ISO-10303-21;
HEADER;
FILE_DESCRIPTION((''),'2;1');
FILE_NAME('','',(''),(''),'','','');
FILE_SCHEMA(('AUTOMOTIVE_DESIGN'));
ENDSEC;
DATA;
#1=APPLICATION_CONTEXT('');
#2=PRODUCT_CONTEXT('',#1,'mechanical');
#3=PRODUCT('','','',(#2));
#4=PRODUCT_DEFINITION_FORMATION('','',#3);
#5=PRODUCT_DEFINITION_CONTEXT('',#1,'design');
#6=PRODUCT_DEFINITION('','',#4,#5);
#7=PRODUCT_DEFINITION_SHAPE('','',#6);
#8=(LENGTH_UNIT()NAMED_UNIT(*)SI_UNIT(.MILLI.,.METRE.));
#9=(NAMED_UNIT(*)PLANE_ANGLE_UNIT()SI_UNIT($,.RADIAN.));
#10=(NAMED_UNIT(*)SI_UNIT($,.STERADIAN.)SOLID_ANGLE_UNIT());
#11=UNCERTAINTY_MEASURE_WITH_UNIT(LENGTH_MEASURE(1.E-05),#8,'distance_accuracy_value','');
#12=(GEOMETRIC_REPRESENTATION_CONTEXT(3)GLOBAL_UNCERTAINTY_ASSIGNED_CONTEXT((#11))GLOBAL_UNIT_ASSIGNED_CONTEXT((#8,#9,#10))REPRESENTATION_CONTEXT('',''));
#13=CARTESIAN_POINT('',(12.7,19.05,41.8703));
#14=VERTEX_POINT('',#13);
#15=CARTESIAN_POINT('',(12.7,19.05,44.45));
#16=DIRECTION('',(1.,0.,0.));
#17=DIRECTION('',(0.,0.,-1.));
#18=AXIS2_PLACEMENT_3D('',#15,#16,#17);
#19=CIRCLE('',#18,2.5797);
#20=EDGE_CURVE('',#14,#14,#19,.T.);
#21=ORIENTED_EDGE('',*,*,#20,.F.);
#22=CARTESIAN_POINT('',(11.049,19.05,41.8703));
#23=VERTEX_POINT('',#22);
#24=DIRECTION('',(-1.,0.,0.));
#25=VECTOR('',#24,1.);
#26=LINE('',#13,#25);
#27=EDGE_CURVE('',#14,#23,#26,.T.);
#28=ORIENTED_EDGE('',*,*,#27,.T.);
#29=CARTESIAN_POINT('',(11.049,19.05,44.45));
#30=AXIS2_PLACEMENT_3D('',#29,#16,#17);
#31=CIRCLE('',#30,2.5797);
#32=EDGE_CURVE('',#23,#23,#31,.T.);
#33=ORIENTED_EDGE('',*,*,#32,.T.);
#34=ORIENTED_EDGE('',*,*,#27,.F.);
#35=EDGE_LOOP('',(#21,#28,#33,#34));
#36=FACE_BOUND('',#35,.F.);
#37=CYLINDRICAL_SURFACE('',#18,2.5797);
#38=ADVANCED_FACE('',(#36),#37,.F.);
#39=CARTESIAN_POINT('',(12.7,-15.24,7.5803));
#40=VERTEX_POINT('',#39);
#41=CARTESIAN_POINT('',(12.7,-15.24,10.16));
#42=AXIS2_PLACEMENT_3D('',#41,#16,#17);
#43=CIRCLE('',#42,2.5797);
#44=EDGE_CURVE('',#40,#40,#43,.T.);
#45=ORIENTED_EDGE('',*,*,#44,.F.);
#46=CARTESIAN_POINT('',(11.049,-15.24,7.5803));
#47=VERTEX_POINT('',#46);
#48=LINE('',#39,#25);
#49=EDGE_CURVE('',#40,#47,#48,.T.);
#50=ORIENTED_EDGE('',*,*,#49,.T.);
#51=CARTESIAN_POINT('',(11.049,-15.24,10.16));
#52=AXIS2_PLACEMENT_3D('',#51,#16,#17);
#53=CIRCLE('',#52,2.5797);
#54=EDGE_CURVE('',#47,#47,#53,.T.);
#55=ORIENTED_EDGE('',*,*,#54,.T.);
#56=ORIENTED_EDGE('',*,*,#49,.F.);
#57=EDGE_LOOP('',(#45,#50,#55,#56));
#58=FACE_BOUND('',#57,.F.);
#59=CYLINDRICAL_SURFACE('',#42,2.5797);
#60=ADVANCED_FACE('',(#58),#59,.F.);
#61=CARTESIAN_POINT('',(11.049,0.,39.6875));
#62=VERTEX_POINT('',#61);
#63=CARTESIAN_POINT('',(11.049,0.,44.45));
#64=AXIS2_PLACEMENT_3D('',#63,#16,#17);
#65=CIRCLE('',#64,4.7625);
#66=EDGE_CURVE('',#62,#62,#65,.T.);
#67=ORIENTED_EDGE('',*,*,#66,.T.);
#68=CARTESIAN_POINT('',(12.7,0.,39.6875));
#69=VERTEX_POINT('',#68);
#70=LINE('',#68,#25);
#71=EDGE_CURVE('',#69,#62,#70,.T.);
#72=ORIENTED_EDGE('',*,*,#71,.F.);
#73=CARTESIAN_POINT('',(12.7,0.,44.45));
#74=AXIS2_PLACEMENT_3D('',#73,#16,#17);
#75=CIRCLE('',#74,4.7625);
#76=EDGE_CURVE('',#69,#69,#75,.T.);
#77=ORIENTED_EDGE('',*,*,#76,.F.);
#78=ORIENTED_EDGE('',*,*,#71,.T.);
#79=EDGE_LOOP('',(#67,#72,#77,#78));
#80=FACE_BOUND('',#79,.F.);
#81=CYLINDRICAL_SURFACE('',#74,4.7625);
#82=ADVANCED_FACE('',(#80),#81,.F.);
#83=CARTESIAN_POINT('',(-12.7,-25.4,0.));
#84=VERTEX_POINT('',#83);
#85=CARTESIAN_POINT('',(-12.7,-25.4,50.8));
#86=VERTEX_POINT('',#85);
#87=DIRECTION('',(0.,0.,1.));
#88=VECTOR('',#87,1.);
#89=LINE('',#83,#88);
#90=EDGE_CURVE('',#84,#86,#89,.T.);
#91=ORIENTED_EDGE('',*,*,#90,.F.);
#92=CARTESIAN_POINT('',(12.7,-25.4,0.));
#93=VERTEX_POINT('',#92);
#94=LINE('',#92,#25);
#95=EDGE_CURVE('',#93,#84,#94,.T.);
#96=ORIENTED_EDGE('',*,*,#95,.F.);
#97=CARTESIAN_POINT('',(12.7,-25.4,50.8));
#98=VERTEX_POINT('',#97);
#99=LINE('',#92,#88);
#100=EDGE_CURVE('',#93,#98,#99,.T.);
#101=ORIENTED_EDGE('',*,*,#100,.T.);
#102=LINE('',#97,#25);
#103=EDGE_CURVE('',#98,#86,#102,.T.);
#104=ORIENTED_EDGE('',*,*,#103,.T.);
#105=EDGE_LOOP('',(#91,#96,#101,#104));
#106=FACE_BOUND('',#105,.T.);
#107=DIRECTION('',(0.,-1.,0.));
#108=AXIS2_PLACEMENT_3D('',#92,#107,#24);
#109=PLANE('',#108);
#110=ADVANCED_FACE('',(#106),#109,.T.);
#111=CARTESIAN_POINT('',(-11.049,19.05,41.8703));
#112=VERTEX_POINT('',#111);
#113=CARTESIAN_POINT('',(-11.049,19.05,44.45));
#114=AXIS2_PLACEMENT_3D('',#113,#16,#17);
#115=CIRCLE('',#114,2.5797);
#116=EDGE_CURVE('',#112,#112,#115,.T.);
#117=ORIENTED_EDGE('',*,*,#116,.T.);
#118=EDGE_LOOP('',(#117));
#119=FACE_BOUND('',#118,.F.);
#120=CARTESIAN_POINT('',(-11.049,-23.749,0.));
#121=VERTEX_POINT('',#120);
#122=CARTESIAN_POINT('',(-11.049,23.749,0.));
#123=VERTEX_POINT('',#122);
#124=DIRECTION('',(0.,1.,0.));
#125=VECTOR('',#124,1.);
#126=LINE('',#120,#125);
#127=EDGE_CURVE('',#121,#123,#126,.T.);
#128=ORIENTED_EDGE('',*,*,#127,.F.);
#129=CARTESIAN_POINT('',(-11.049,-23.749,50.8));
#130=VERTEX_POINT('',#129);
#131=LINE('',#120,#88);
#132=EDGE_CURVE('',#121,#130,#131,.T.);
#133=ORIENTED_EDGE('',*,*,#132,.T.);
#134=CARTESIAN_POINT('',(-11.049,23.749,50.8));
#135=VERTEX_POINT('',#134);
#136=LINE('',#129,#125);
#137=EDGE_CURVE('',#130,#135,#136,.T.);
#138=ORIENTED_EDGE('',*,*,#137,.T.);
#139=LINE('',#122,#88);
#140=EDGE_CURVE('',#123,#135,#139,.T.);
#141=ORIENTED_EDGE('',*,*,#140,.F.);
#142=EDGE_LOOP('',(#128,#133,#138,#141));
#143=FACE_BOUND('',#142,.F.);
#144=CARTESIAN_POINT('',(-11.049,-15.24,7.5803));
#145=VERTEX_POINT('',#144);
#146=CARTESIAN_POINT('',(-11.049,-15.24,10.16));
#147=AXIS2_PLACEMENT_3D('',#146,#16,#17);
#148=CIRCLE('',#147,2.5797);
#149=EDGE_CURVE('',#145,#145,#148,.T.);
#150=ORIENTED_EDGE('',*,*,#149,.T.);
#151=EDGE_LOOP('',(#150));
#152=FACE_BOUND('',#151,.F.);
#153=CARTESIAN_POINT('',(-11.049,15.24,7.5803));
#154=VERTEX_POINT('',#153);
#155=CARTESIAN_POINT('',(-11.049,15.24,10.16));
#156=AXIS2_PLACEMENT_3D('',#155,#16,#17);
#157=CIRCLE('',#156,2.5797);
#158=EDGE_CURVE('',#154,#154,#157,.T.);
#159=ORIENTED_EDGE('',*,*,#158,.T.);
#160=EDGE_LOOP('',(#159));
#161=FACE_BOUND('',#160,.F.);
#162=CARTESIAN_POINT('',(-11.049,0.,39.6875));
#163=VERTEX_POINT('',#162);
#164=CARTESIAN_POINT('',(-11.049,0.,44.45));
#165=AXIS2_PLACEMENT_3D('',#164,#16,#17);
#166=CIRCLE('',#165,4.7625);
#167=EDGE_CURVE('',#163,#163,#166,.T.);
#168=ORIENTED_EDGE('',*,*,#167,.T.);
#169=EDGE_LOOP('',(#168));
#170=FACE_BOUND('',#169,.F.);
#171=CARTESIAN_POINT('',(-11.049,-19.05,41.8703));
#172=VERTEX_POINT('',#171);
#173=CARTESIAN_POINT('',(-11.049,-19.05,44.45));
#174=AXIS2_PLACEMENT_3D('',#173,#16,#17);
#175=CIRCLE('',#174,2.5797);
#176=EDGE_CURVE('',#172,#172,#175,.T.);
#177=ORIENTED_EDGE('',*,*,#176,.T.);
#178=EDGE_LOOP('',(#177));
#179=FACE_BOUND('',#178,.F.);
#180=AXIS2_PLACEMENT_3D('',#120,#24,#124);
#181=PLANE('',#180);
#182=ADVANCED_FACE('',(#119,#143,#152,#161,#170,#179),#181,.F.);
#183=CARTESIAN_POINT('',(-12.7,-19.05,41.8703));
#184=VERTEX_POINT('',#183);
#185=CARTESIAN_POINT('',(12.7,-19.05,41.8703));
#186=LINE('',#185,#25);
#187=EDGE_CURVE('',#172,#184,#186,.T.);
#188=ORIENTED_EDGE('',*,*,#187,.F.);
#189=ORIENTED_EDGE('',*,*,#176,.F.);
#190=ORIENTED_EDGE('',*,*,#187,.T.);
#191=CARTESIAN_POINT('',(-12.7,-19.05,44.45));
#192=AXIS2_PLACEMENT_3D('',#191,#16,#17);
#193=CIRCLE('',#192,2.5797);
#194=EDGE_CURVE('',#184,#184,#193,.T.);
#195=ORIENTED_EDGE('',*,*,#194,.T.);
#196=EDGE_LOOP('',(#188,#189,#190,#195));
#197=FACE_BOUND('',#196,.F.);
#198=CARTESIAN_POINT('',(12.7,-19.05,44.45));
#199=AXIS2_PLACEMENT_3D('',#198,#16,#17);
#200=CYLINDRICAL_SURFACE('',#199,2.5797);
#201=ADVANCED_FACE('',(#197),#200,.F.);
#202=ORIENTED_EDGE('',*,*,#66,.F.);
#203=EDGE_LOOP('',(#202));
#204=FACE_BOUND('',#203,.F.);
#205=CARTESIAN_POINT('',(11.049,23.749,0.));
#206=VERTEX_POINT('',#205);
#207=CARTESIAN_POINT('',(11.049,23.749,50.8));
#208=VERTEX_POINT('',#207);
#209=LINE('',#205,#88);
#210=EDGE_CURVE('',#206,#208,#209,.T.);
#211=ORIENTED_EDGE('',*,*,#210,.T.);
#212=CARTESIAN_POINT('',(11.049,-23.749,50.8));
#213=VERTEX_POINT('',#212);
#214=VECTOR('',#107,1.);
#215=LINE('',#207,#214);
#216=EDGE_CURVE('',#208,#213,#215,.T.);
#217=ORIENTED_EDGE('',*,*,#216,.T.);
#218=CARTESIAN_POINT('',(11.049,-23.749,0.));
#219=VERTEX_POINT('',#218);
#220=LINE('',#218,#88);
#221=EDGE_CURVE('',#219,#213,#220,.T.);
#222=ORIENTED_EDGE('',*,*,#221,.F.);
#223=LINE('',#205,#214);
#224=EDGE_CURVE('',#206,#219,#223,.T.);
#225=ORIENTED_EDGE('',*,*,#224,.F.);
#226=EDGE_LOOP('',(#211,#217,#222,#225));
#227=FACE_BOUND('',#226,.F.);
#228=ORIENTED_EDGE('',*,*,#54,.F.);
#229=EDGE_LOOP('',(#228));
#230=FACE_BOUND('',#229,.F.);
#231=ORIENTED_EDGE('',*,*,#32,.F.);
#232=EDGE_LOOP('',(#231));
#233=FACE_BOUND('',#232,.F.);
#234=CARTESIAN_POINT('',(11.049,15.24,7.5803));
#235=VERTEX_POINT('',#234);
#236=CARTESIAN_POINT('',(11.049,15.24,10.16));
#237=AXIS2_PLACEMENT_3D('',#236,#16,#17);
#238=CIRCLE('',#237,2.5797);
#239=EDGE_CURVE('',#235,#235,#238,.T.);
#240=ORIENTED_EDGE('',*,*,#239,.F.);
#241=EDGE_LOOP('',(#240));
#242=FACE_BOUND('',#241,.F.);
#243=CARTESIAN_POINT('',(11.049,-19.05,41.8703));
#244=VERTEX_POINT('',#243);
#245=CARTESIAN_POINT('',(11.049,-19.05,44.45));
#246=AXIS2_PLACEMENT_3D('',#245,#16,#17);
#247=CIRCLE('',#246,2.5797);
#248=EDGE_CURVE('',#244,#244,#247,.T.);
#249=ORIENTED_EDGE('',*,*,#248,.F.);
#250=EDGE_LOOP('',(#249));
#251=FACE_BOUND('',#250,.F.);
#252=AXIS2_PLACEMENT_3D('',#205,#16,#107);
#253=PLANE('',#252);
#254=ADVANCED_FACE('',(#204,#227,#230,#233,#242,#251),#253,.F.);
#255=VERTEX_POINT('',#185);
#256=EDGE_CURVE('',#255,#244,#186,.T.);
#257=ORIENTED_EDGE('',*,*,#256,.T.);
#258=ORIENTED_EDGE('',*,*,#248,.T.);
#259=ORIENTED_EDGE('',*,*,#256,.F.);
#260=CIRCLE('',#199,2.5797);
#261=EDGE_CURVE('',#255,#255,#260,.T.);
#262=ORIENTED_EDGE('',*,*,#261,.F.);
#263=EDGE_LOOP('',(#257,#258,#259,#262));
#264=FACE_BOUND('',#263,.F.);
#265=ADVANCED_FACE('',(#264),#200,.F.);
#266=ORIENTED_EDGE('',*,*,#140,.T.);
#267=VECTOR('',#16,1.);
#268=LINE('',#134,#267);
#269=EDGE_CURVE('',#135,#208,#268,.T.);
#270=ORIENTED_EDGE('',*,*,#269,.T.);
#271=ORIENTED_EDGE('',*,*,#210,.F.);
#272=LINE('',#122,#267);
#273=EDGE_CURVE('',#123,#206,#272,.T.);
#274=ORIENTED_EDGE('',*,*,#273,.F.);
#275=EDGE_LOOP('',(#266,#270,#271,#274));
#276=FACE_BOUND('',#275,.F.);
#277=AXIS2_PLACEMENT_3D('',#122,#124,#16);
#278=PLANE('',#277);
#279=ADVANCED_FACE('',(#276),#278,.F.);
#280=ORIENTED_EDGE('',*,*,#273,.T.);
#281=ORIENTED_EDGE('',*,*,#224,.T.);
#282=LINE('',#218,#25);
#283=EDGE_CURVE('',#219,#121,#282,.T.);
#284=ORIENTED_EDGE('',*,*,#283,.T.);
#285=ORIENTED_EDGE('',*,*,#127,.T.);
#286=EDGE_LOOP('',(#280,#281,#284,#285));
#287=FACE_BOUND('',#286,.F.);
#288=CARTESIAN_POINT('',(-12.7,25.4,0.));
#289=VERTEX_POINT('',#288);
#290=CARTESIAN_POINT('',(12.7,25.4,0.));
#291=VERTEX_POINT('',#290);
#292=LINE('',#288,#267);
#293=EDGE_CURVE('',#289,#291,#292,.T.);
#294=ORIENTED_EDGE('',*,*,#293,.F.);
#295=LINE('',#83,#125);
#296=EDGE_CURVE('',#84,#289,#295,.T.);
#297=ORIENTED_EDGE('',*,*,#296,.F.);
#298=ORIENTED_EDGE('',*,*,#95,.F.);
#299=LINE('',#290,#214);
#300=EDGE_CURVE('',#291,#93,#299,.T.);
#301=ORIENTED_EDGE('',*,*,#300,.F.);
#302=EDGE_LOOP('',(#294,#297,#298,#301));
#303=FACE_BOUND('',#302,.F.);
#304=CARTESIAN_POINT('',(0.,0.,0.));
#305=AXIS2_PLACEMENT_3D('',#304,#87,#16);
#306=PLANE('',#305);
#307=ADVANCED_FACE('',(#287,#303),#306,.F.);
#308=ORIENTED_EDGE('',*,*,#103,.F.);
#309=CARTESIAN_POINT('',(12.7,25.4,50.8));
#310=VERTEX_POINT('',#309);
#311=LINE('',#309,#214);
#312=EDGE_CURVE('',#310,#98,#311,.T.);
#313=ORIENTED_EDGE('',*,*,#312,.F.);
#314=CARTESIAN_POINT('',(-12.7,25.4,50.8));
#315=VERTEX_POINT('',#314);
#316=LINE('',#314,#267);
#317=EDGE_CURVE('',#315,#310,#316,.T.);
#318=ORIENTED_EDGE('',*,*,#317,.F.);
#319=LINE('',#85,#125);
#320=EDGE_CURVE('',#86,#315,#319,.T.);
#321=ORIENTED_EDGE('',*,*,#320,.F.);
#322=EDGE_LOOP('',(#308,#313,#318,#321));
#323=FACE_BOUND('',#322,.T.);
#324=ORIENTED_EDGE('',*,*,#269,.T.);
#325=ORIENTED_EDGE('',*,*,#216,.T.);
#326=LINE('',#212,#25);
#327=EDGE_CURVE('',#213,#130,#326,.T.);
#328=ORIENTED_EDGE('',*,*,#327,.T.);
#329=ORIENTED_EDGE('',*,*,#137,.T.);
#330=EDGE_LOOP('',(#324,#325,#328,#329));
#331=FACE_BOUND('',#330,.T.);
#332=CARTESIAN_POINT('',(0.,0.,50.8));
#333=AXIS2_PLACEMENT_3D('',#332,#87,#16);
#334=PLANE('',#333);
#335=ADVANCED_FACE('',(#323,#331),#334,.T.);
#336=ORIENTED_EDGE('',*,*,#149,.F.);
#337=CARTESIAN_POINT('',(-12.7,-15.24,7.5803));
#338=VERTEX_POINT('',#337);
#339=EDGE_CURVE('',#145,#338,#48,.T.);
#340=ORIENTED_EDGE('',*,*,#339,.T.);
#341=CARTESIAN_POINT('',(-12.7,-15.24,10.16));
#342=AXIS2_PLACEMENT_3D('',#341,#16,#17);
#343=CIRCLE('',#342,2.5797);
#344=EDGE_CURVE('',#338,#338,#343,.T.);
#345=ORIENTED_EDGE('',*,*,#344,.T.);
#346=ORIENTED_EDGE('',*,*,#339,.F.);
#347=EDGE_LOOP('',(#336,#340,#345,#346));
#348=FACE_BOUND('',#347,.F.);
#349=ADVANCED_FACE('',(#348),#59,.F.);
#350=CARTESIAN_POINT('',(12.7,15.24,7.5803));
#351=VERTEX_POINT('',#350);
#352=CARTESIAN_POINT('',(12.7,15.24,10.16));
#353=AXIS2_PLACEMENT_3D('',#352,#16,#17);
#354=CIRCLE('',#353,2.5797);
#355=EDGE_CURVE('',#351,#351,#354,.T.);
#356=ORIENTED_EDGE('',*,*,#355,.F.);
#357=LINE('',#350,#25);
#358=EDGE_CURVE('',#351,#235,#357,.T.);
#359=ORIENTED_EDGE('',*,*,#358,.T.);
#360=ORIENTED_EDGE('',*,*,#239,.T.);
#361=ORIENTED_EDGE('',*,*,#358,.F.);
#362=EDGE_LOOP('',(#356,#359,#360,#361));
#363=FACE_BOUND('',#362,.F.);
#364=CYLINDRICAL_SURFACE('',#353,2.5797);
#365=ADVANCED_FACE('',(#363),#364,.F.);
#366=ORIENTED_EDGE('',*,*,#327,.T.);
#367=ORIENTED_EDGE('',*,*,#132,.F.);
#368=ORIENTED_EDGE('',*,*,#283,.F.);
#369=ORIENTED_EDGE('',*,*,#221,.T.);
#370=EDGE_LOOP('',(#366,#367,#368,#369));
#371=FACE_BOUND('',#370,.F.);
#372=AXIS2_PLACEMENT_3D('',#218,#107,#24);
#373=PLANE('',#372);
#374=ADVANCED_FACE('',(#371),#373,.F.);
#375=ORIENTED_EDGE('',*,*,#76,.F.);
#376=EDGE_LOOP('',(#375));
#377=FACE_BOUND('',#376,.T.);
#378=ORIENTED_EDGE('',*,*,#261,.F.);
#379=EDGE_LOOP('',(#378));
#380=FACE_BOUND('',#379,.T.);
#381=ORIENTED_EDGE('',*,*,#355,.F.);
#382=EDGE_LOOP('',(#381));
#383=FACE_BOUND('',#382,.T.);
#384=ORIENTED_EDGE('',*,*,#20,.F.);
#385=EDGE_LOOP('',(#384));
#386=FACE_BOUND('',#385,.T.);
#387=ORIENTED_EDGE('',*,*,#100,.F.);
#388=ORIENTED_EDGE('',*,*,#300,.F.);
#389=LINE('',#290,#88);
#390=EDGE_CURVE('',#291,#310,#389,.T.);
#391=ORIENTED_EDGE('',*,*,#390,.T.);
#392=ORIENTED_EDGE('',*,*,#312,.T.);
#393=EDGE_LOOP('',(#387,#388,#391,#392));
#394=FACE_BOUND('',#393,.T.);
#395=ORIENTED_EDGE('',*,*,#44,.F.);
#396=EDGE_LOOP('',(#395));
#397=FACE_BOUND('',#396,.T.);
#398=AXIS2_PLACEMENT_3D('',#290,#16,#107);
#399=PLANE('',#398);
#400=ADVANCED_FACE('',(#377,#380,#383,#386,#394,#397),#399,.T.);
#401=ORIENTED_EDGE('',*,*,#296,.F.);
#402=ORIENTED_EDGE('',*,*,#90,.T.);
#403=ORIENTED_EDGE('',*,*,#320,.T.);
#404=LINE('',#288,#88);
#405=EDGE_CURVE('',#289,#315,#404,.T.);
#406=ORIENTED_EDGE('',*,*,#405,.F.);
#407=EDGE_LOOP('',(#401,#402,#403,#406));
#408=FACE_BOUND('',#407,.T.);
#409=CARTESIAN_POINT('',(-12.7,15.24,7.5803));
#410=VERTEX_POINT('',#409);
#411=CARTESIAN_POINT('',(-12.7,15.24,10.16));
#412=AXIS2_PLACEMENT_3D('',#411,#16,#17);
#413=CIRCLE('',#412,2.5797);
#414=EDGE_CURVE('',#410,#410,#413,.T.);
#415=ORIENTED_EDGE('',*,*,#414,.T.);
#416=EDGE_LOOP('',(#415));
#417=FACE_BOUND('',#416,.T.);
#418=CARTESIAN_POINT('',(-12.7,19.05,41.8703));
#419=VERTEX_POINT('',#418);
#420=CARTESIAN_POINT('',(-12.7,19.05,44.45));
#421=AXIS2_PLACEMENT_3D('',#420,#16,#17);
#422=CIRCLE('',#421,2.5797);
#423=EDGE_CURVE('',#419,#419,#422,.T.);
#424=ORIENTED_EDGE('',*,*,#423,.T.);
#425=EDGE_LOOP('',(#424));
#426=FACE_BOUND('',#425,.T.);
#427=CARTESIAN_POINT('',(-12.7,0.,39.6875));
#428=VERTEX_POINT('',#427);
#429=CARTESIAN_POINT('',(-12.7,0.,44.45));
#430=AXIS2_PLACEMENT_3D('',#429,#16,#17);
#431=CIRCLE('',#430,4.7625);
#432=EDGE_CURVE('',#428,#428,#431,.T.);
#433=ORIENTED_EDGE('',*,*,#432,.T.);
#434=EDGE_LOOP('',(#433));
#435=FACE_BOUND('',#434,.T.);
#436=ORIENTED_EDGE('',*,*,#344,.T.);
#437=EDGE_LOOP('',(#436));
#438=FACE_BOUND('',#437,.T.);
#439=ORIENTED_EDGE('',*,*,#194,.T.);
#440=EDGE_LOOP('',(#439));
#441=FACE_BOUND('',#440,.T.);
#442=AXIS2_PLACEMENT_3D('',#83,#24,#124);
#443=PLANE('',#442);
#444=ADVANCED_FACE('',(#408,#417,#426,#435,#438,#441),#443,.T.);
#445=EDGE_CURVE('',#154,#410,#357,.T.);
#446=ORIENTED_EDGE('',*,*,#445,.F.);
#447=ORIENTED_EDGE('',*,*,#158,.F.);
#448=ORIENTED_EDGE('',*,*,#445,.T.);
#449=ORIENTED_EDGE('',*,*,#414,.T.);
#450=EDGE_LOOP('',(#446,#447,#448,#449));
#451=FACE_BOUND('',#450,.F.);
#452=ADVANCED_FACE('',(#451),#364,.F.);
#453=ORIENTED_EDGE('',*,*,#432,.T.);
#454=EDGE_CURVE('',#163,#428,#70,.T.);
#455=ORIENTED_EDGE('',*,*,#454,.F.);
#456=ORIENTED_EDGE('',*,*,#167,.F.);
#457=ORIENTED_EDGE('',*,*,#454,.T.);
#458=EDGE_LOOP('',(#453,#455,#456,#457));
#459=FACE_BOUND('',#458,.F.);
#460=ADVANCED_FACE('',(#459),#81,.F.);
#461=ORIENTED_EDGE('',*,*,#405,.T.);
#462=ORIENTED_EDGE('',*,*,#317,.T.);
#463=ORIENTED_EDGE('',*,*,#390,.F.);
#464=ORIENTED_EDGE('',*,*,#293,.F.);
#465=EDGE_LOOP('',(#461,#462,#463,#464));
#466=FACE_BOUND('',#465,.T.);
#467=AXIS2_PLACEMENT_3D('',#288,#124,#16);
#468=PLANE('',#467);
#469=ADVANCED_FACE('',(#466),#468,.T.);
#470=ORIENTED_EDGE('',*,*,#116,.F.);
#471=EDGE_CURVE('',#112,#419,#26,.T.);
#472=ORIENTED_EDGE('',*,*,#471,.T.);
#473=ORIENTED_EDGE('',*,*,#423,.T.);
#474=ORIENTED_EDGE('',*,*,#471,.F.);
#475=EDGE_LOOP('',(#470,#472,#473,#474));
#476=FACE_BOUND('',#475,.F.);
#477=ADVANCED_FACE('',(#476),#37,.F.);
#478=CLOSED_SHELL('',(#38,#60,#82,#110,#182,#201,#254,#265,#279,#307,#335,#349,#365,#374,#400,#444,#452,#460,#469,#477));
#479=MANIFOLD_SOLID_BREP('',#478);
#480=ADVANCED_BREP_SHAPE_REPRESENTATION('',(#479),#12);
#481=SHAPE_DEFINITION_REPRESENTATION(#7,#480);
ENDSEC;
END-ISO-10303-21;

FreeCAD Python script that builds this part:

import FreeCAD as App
import Part
import Sketcher

V = App.Vector
Q = App.Units.Quantity


def add_polygon(sketch, points):
    """Adds a closed chain of lines whose ends are joined by coincident constraints."""
    first, n = sketch.GeometryCount, len(points)
    for a, b in zip(points, points[1:] + points[:1]):
        sketch.addGeometry(Part.LineSegment(App.Vector(*a, 0), App.Vector(*b, 0)), False)
    for i in range(n):
        sketch.addConstraint(Sketcher.Constraint("Coincident", first + i, 2, first + (i + 1) % n, 1))

doc = App.newDocument("Part")
body = doc.addObject("PartDesign::Body", "Body")

# Sketch on XY plane
sketch1 = doc.addObject("Sketcher::SketchObject", "Sketch")
body.addObject(sketch1)
sketch1.AttachmentSupport = (doc.XY_Plane, [""])
sketch1.MapMode = "FlatFace"
add_polygon(sketch1, [(-13, -25), (13, -25), (13, 25), (-13, 25)])  # lines 0-3
add_polygon(sketch1, [(11, 24), (11, -24), (-11, -24), (-11, 24)])  # lines 4-7
sketch1.addConstraint([
    Sketcher.Constraint("Horizontal", 0),
    Sketcher.Constraint("Vertical", 1),
    Sketcher.Constraint("Horizontal", 2),
    Sketcher.Constraint("Vertical", 3),
    Sketcher.Constraint("Vertical", 4),
    Sketcher.Constraint("Horizontal", 5),
    Sketcher.Constraint("Vertical", 6),
    Sketcher.Constraint("Horizontal", 7),
    Sketcher.Constraint("Symmetric", 0, 2, 2, 2, -1, 1),
    Sketcher.Constraint("Symmetric", 4, 2, 6, 2, -1, 1),
    Sketcher.Constraint("DistanceX", 0, 1, 0, 2, Q("1 in")),
    Sketcher.Constraint("DistanceY", 1, 1, 1, 2, Q("2 in")),
    Sketcher.Constraint("DistanceX", 4, 2, 0, 2, Q("0.065 in")),
    Sketcher.Constraint("DistanceY", 0, 2, 4, 2, Q("0.065 in")),
])
pad1 = doc.addObject("PartDesign::Pad", "Pad")
body.addObject(pad1)
pad1.Profile = sketch1
pad1.Length = Q("2 in")

# Sketch on YZ plane
sketch2 = doc.addObject("Sketcher::SketchObject", "Sketch001")
body.addObject(sketch2)
sketch2.AttachmentSupport = (doc.YZ_Plane, [""])
sketch2.MapMode = "FlatFace"
sketch2.AttachmentOffset = App.Placement(V(0, 0, 0.5 * 25.4), App.Rotation())
sketch2.addGeometry(Part.Circle(V(0, 44.5, 0), V(0, 0, 1), 4.8), False)
sketch2.addConstraint([
    Sketcher.Constraint("PointOnObject", 0, 3, -2),
    Sketcher.Constraint("Diameter", 0, Q("0.375 in")),
    Sketcher.Constraint("DistanceY", -1, 1, 0, 3, Q("1.75 in")),
])
pocket1 = doc.addObject("PartDesign::Pocket", "Pocket")
body.addObject(pocket1)
pocket1.Profile = sketch2
pocket1.Length = Q("2 in")

# Sketch on YZ plane
sketch3 = doc.addObject("Sketcher::SketchObject", "Sketch002")
body.addObject(sketch3)
sketch3.AttachmentSupport = (doc.YZ_Plane, [""])
sketch3.MapMode = "FlatFace"
sketch3.AttachmentOffset = App.Placement(V(0, 0, 0.5 * 25.4), App.Rotation())
sketch3.addGeometry([
    Part.Circle(V(-15.2, 10.2, 0), V(0, 0, 1), 2.6),
    Part.Circle(V(-19.1, 44.5, 0), V(0, 0, 1), 2.6),
    Part.Circle(V(19.1, 44.5, 0), V(0, 0, 1), 2.6),
    Part.Circle(V(15.2, 10.2, 0), V(0, 0, 1), 2.6),
], False)
sketch3.addConstraint([
    Sketcher.Constraint("Equal", 0, 1),
    Sketcher.Constraint("Equal", 1, 2),
    Sketcher.Constraint("Equal", 2, 3),
    Sketcher.Constraint("Symmetric", 1, 3, 2, 3, -2),
    Sketcher.Constraint("Symmetric", 0, 3, 3, 3, -2),
    Sketcher.Constraint("Diameter", 0, Q("0.203126 in")),
    Sketcher.Constraint("DistanceY", -1, 1, 0, 3, Q("0.4 in")),
    Sketcher.Constraint("DistanceX", 0, 3, -1, 1, Q("0.6 in")),
    Sketcher.Constraint("DistanceX", 1, 3, 2, 3, Q("1.5 in")),
    Sketcher.Constraint("DistanceY", -1, 1, 1, 3, Q("1.75 in")),
])
pocket2 = doc.addObject("PartDesign::Pocket", "Pocket001")
body.addObject(pocket2)
pocket2.Profile = sketch3
pocket2.Length = Q("2 in")

doc.recompute()
